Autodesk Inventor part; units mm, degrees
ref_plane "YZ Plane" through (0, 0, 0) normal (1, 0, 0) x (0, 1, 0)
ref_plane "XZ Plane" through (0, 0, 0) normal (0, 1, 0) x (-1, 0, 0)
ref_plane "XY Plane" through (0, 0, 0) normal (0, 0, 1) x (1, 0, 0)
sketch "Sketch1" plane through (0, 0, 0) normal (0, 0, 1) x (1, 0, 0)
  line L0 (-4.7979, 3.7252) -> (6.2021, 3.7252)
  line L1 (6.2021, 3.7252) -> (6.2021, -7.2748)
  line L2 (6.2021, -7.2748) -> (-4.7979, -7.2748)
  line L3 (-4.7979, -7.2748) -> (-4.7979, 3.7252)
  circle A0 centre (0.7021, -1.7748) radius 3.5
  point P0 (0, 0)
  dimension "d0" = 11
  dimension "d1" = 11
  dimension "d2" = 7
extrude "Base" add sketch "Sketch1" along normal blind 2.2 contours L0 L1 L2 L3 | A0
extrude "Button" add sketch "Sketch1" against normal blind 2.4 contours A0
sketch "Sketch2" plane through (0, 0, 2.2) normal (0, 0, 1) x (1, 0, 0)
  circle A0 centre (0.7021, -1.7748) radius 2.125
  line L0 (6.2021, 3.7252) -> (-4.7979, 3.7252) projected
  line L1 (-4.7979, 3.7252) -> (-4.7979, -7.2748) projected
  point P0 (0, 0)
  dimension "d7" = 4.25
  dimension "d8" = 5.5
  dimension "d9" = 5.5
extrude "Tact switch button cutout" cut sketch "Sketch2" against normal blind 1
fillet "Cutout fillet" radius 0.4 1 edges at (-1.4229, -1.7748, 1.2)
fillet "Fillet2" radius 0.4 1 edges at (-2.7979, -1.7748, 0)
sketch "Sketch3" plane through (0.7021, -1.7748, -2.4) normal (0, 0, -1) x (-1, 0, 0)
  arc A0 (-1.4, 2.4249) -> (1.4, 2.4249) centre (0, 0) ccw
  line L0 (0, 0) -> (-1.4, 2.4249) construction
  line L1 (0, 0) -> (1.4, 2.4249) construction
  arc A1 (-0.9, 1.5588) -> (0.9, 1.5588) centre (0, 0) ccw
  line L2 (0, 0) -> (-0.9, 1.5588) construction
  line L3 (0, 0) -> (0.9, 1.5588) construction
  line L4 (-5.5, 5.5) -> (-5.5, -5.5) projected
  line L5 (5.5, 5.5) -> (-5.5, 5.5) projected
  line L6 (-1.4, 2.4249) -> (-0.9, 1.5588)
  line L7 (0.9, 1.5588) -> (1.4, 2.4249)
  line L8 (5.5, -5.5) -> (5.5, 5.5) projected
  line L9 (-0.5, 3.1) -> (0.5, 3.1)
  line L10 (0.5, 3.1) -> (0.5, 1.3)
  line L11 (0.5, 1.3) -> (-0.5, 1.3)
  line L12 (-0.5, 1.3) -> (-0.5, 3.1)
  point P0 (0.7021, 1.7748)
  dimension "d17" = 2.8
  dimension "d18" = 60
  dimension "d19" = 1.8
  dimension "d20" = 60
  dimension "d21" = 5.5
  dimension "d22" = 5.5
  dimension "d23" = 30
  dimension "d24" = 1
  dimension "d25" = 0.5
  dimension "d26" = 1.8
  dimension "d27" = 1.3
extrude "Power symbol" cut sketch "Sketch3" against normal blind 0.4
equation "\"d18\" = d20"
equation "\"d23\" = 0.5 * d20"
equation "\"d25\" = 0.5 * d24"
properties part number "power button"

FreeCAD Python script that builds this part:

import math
import FreeCAD as App
import Part
import Sketcher

V = App.Vector
Q = App.Units.Quantity


def edges_at(feature, points):
    """Names of the edges that pass closest to the given points."""
    edges = feature.Shape.Edges
    near = lambda p: min(range(len(edges)), key=lambda i: edges[i].distToShape(Part.Vertex(*p))[0])
    return sorted({f"Edge{near(p) + 1}" for p in points})

doc = App.newDocument("Part")
body = doc.addObject("PartDesign::Body", "Body")

sketch1 = doc.addObject("Sketcher::SketchObject", "Sketch")
body.addObject(sketch1)
sketch1.AttachmentSupport = (doc.XY_Plane, [""])
sketch1.MapMode = "FlatFace"
sketch1.addGeometry([
    Part.LineSegment(V(6.2021, 3.7252, 0), V(-4.7979, 3.7252, 0)),
    Part.LineSegment(V(-4.7979, 3.7252, 0), V(-4.7979, -7.2748, 0)),
    Part.LineSegment(V(-4.7979, -7.2748, 0), V(6.2021, -7.2748, 0)),
    Part.LineSegment(V(6.2021, -7.2748, 0), V(6.2021, 3.7252, 0)),
], False)
sketch1.addConstraint([
    Sketcher.Constraint("Coincident", 0, 2, 1, 1),
    Sketcher.Constraint("Coincident", 1, 2, 2, 1),
    Sketcher.Constraint("Coincident", 2, 2, 3, 1),
    Sketcher.Constraint("Coincident", 3, 2, 0, 1),
    Sketcher.Constraint("Horizontal", 0),
    Sketcher.Constraint("Vertical", 1),
    Sketcher.Constraint("Horizontal", 2),
    Sketcher.Constraint("Vertical", 3),
    Sketcher.Constraint("Equal", 2, 1),
    Sketcher.Constraint("DistanceX", 0, 2, 0, 1, Q("11 mm")),
    Sketcher.Constraint("DistanceX", 0, 2, -1, 1, Q("4.798 mm")),
    Sketcher.Constraint("DistanceY", -1, 1, 0, 2, Q("3.7252 mm")),
])
pad1 = doc.addObject("PartDesign::Pad", "Pad")
body.addObject(pad1)
pad1.Profile = sketch1
pad1.Length = 2.2

sketch2 = doc.addObject("Sketcher::SketchObject", "Sketch001")
body.addObject(sketch2)
sketch2.AttachmentSupport = (doc.XY_Plane, [""])
sketch2.MapMode = "FlatFace"
sketch2.addGeometry(Part.Circle(V(0.7021, -1.7748, 0), V(0, 0, 1), 3.5), False)
sketch2.addConstraint([
    Sketcher.Constraint("Diameter", 0, Q("7 mm")),
    Sketcher.Constraint("DistanceX", -1, 1, 0, 3, Q("0.702 mm")),
    Sketcher.Constraint("DistanceY", 0, 3, -1, 1, Q("1.7748 mm")),
])
pad2 = doc.addObject("PartDesign::Pad", "Pad001")
body.addObject(pad2)
pad2.Profile = sketch2
pad2.Length = 2.4
pad2.Reversed = True

sketch3 = doc.addObject("Sketcher::SketchObject", "Sketch002")
body.addObject(sketch3)
sketch3.AttachmentSupport = (doc.XY_Plane, [""])
sketch3.MapMode = "FlatFace"
sketch3.AttachmentOffset = App.Placement(V(0, 0, 2.2), App.Rotation())
sketch3.addGeometry(Part.Circle(V(0.7021, -1.7748, 0), V(0, 0, 1), 2.125), False)
sketch3.addConstraint([
    Sketcher.Constraint("Diameter", 0, Q("4.25 mm")),
    Sketcher.Constraint("DistanceX", -1, 1, 0, 3, Q("0.702 mm")),
    Sketcher.Constraint("DistanceY", 0, 3, -1, 1, Q("1.7748 mm")),
])
pocket1 = doc.addObject("PartDesign::Pocket", "Pocket")
body.addObject(pocket1)
pocket1.Profile = sketch3
pocket1.Length = 1
doc.recompute()

fillet = doc.addObject("PartDesign::Fillet", "Fillet")
body.addObject(fillet)
fillet.Base = (pocket1, edges_at(pocket1, [(-1.423, -1.775, 1.2)]))
fillet.Radius = 0.4
doc.recompute()

fillet2 = doc.addObject("PartDesign::Fillet", "Fillet001")
body.addObject(fillet2)
fillet2.Base = (fillet, edges_at(fillet, [(-2.798, -1.775, 0)]))
fillet2.Radius = 0.4

sketch4 = doc.addObject("Sketcher::SketchObject", "Sketch003")
body.addObject(sketch4)
sketch4.AttachmentSupport = (doc.XY_Plane, [""])
sketch4.MapMode = "FlatFace"
sketch4.AttachmentOffset = App.Placement(V(0, 0, -2.4), App.Rotation())
sketch4.addGeometry([
    Part.LineSegment(V(1.6021, -0.216, 0), V(2.1021, 0.6501, 0)),
    Part.ArcOfCircle(Part.Circle(V(0.7021, -1.7748, 0), V(0, 0, 1), 2.800025), math.radians(119.999705), math.radians(420.000295)),
    Part.LineSegment(V(-0.6979, 0.6501, 0), V(-0.1979, -0.216, 0)),
    Part.ArcOfCircle(Part.Circle(V(0.7021, -1.7748, 0), V(0, 0, 1), 1.79996), math.radians(120.000728), math.radians(419.999272)),
    Part.LineSegment(V(0.2021, 1.3252, 0), V(1.2021, 1.3252, 0)),
    Part.LineSegment(V(1.2021, 1.3252, 0), V(1.2021, -0.4748, 0)),
    Part.LineSegment(V(1.2021, -0.4748, 0), V(0.2021, -0.4748, 0)),
    Part.LineSegment(V(0.2021, -0.4748, 0), V(0.2021, 1.3252, 0)),
], False)
sketch4.addConstraint([
    Sketcher.Constraint("Coincident", 0, 2, 1, 2),
    Sketcher.Constraint("Coincident", 1, 1, 2, 1),
    Sketcher.Constraint("Coincident", 2, 2, 3, 1),
    Sketcher.Constraint("Coincident", 3, 2, 0, 1),
    Sketcher.Constraint("Coincident", 4, 2, 5, 1),
    Sketcher.Constraint("Coincident", 5, 2, 6, 1),
    Sketcher.Constraint("Coincident", 6, 2, 7, 1),
    Sketcher.Constraint("Coincident", 7, 2, 4, 1),
    Sketcher.Constraint("Horizontal", 4),
    Sketcher.Constraint("Vertical", 5),
    Sketcher.Constraint("Horizontal", 6),
    Sketcher.Constraint("Vertical", 7),
    Sketcher.Constraint("Coincident", 3, 3, 1, 3),
    Sketcher.Constraint("Horizontal", 0, 2, 1, 1),
    Sketcher.Constraint("Horizontal", 2, 2, 3, 2),
    Sketcher.Constraint("Radius", 1, Q("2.8 mm")),
    Sketcher.Constraint("Radius", 3, Q("1.8 mm")),
    Sketcher.Constraint("DistanceX", 4, 1, 4, 2, Q("1 mm")),
    Sketcher.Constraint("DistanceY", 5, 2, 5, 1, Q("1.8 mm")),
    Sketcher.Constraint("DistanceX", 1, 1, 0, 2, Q("2.8 mm")),
    Sketcher.Constraint("DistanceX", 1, 1, 2, 2, Q("0.5 mm")),
    Sketcher.Constraint("DistanceX", 1, 3, 4, 2, Q("0.5 mm")),
    Sketcher.Constraint("DistanceY", 1, 3, 5, 2, Q("1.3 mm")),
    Sketcher.Constraint("DistanceY", -1, 1, 0, 2, Q("0.65 mm")),
    Sketcher.Constraint("DistanceX", -1, 1, 1, 3, Q("0.702 mm")),
])
pocket2 = doc.addObject("PartDesign::Pocket", "Pocket001")
body.addObject(pocket2)
pocket2.Profile = sketch4
pocket2.Length = 0.4
pocket2.Reversed = True

doc.recompute()
